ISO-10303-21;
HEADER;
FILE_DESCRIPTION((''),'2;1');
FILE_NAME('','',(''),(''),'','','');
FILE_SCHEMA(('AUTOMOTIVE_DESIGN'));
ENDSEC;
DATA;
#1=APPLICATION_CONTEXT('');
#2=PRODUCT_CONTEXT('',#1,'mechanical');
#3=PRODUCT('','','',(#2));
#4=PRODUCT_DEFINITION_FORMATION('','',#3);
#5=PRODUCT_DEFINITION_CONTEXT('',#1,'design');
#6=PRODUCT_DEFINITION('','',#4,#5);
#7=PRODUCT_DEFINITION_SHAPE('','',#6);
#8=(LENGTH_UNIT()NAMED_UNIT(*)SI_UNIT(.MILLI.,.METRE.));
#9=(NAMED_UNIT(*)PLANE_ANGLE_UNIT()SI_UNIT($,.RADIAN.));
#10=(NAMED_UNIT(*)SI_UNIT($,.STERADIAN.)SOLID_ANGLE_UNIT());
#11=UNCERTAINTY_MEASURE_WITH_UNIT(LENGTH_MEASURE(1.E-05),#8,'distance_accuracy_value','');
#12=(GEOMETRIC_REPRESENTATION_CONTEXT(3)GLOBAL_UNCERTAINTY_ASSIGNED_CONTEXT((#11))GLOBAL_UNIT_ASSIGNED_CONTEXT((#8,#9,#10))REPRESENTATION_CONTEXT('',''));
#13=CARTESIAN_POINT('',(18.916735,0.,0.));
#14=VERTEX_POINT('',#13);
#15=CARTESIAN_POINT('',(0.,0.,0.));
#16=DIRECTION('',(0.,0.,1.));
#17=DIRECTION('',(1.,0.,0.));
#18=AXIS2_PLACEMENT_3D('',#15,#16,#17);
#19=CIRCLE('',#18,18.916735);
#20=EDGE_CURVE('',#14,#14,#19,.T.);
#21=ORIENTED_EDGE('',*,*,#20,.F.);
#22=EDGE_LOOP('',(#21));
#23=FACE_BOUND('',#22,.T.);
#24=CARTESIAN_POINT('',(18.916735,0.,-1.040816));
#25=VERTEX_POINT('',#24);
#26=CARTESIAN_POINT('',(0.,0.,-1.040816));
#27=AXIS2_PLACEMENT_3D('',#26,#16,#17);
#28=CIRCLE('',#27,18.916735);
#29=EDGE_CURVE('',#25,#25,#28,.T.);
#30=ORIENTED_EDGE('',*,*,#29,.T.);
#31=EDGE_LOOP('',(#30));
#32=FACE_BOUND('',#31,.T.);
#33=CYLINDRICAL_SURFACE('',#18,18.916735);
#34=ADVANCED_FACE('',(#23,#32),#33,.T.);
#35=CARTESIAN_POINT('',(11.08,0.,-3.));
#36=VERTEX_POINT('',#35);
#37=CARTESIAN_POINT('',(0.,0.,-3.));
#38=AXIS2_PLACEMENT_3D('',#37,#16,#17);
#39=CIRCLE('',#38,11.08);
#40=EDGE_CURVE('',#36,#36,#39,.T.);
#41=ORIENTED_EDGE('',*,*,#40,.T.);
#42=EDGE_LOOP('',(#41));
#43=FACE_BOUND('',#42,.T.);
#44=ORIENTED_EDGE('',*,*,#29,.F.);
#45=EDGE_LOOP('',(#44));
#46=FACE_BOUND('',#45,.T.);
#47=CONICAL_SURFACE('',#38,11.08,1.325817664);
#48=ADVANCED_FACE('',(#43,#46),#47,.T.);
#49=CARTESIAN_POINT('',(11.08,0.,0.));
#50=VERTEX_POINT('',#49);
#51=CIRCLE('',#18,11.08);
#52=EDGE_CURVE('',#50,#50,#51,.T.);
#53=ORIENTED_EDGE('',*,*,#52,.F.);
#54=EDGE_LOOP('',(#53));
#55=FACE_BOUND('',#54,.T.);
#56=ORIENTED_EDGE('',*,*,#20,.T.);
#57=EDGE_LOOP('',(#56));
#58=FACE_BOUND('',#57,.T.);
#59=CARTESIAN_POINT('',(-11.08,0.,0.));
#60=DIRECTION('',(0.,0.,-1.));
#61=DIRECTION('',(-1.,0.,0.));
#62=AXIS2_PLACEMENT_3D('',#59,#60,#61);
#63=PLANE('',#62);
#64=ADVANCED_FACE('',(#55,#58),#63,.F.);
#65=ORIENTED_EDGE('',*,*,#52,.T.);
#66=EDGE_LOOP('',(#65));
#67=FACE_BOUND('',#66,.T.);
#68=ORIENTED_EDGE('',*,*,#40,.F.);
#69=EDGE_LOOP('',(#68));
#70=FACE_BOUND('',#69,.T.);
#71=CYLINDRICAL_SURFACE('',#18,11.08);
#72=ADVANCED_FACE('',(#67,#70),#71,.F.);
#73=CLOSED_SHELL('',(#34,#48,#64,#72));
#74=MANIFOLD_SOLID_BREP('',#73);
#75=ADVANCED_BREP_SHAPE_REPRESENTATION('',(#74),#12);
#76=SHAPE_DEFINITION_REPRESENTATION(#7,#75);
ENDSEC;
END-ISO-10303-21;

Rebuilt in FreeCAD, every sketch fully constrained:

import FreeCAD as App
import Part
import Sketcher
from FreeCAD import Vector
Q = App.Units.Quantity


def add_polygon(sketch, points):
    """Adds a closed chain of lines whose ends are joined by coincident constraints."""
    first, n = sketch.GeometryCount, len(points)
    for a, b in zip(points, points[1:] + points[:1]):
        sketch.addGeometry(Part.LineSegment(App.Vector(*a, 0), App.Vector(*b, 0)), False)
    for i in range(n):
        sketch.addConstraint(Sketcher.Constraint("Coincident", first + i, 2, first + (i + 1) % n, 1))

doc = App.newDocument("Part")
body = doc.addObject("PartDesign::Body", "Body")

sketch1 = doc.addObject("Sketcher::SketchObject", "Sketch")
body.addObject(sketch1)
sketch1.AttachmentSupport = (doc.XZ_Plane, [""])
sketch1.MapMode = "FlatFace"
add_polygon(sketch1, [(-18.9, -1), (-18.9, 0), (-11.1, 0), (-11.1, -3)])
sketch1.addConstraint([
    Sketcher.Constraint("Vertical", 0),
    Sketcher.Constraint("Horizontal", 1),
    Sketcher.Constraint("Vertical", 2),
    Sketcher.Constraint("PointOnObject", 0, 2, -1),
    Sketcher.Constraint("DistanceY", 2, 2, 2, 1, Q("3 mm")),
    Sketcher.Constraint("DistanceX", 1, 2, -1, 1, Q("11.08 mm")),
    Sketcher.Constraint("Distance", 3, Q("8.077921 mm")),
    Sketcher.Constraint("DistanceX", 1, 1, 1, 2, Q("7.836735 mm")),
])
revolution = doc.addObject("PartDesign::Revolution", "Revolution")
body.addObject(revolution)
revolution.Profile = sketch1
revolution.ReferenceAxis = (sketch1, ["V_Axis"])
revolution.Angle = 360

doc.recompute()
